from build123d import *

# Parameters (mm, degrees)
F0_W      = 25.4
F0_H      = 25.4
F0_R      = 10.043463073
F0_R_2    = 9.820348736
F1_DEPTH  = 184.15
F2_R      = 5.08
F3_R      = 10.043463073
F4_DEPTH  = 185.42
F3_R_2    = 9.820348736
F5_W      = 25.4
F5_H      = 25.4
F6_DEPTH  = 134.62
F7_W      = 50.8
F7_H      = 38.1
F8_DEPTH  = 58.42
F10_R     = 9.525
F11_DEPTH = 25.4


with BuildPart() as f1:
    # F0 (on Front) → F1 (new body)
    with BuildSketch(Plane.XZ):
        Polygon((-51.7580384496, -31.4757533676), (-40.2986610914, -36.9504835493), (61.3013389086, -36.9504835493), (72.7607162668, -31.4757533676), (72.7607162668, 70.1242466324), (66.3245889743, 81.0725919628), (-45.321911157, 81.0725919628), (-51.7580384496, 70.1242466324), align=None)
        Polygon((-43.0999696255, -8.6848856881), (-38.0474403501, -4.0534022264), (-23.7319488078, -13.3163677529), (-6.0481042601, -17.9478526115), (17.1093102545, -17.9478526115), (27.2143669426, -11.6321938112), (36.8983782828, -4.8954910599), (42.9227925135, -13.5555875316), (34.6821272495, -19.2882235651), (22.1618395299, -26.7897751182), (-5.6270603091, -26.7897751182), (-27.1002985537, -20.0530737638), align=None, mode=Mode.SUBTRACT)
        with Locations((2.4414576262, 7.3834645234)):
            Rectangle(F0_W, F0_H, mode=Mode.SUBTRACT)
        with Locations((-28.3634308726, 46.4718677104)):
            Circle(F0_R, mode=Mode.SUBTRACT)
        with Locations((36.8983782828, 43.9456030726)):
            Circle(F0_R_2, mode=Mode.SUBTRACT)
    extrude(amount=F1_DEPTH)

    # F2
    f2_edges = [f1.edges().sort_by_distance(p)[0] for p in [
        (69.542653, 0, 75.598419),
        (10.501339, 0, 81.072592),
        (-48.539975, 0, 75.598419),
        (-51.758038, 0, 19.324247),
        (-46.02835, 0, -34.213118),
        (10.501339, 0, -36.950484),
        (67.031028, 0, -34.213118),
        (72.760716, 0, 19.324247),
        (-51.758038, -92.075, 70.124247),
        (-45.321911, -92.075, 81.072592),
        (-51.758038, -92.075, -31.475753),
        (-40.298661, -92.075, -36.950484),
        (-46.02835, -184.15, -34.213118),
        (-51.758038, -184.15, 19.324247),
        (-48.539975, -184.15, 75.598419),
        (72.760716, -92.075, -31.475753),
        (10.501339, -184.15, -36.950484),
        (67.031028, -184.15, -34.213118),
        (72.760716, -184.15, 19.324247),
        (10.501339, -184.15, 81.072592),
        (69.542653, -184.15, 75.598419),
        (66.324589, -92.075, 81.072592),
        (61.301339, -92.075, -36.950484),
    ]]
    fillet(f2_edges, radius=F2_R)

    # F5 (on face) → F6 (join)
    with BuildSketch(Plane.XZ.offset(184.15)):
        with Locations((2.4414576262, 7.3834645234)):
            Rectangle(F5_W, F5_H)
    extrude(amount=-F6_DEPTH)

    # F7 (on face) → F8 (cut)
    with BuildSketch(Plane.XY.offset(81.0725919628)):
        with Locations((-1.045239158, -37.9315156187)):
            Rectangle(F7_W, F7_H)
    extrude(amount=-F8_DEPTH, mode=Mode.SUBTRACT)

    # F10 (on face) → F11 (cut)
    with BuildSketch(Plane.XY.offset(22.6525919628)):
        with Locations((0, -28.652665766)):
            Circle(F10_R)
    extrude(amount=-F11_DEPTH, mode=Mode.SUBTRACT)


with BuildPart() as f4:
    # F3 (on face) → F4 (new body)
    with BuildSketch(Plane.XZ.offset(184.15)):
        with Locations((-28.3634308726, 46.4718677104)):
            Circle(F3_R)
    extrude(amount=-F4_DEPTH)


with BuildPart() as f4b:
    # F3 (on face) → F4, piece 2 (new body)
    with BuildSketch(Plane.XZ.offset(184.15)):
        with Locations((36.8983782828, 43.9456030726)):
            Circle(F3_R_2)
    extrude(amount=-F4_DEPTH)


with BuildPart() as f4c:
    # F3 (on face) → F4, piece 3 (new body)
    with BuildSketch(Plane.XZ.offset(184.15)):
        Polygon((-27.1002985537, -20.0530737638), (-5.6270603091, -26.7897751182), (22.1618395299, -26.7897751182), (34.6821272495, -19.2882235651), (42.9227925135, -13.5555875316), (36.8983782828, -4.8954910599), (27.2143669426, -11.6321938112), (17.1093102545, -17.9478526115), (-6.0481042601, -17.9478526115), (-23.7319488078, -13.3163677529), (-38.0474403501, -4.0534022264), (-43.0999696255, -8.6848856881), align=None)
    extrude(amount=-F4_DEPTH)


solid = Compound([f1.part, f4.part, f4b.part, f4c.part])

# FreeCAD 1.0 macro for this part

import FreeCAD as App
import Part
import Sketcher
Q = App.Units.Quantity


def edges_at(feature, points):
    """Names of the edges that pass closest to the given points."""
    edges = feature.Shape.Edges
    near = lambda p: min(range(len(edges)), key=lambda i: edges[i].distToShape(Part.Vertex(*p))[0])
    return sorted({f"Edge{near(p) + 1}" for p in points})


def add_polygon(sketch, points):
    """Adds a closed chain of lines whose ends are joined by coincident constraints."""
    first, n = sketch.GeometryCount, len(points)
    for a, b in zip(points, points[1:] + points[:1]):
        sketch.addGeometry(Part.LineSegment(App.Vector(*a, 0), App.Vector(*b, 0)), False)
    for i in range(n):
        sketch.addConstraint(Sketcher.Constraint("Coincident", first + i, 2, first + (i + 1) % n, 1))

doc = App.newDocument("Part")
body = doc.addObject("PartDesign::Body", "Body")

sketch1 = doc.addObject("Sketcher::SketchObject", "Sketch")
body.addObject(sketch1)
sketch1.AttachmentSupport = (doc.XZ_Plane, [""])
sketch1.MapMode = "FlatFace"
add_polygon(sketch1, [(-51.758038, -31.475753), (-40.298661, -36.950484), (61.301339, -36.950484), (72.760716, -31.475753), (72.760716, 70.124247), (66.324589, 81.072592), (-45.321911, 81.072592), (-51.758038, 70.124247)])
add_polygon(sketch1, [(-27.100299, -20.053074), (-43.09997, -8.684886), (-38.04744, -4.053402), (-23.731949, -13.316368), (-6.048104, -17.947853), (17.10931, -17.947853), (27.214367, -11.632194), (36.898378, -4.895491), (42.922793, -13.555588), (34.682127, -19.288224), (22.16184, -26.789775), (-5.62706, -26.789775)])
add_polygon(sketch1, [(15.141458, -5.316535), (-10.258542, -5.316535), (-10.258542, 20.083465), (15.141458, 20.083465)])
sketch1.addGeometry(Part.Circle(App.Vector(-28.363431, 46.471868, 0), App.Vector(0, 0, 1), 10.043463), False)
sketch1.addGeometry(Part.Circle(App.Vector(36.898378, 43.945603, 0), App.Vector(0, 0, 1), 9.820349), False)
sketch1.addConstraint([
    Sketcher.Constraint("Horizontal", 1),
    Sketcher.Constraint("Vertical", 3),
    Sketcher.Constraint("Horizontal", 5),
    Sketcher.Constraint("Vertical", 7),
    Sketcher.Constraint("Horizontal", 12),
    Sketcher.Constraint("Horizontal", 18),
    Sketcher.Constraint("Horizontal", 20),
    Sketcher.Constraint("Vertical", 21),
    Sketcher.Constraint("Horizontal", 22),
    Sketcher.Constraint("Vertical", 23),
    Sketcher.Constraint("Perpendicular", 14, 15),
    Sketcher.Constraint("Perpendicular", 15, 16),
    Sketcher.Constraint("Horizontal", 3, 2, 6, 2),
    Sketcher.Constraint("Horizontal", 2, 2, 7, 2),
    Sketcher.Constraint("Vertical", 25, 3, 14, 2),
    Sketcher.Constraint("Equal", 1, 3),
    Sketcher.Constraint("Equal", 22, 21),
    Sketcher.Constraint("Equal", 0, 2),
    Sketcher.Constraint("Equal", 2, 4),
    Sketcher.Constraint("Equal", 4, 6),
    Sketcher.Constraint("DistanceX", 1, 1, 1, 2, Q("4 in")),
    Sketcher.Constraint("DistanceX", 20, 2, 20, 1, Q("1 in")),
    Sketcher.Constraint("Distance", 0, Q("0.5 in")),
    Sketcher.Constraint("Diameter", 24, Q("20.086926 mm")),
    Sketcher.Constraint("Diameter", 25, Q("19.640697 mm")),
    Sketcher.Constraint("DistanceX", 5, 2, 5, 1, Q("111.6465 mm")),
    Sketcher.Constraint("DistanceX", 18, 2, 18, 1, Q("27.7889 mm")),
    Sketcher.Constraint("Distance", 9, Q("6.8541 mm")),
    Sketcher.Constraint("DistanceX", 19, 2, -1, 1, Q("27.100299 mm")),
    Sketcher.Constraint("DistanceX", 7, 2, 9, 2, Q("13.710598 mm")),
    Sketcher.Constraint("DistanceY", 7, 2, 11, 2, Q("13.527901 mm")),
    Sketcher.Constraint("DistanceX", 0, 2, 18, 2, Q("34.671601 mm")),
    Sketcher.Constraint("Distance", 11, Q("18.28029 mm")),
    Sketcher.Constraint("Distance", 16, Q("10.03851 mm")),
    Sketcher.Constraint("Distance", 19, Q("22.50518 mm")),
    Sketcher.Constraint("DistanceX", 12, 1, 12, 2, Q("23.157415 mm")),
    Sketcher.Constraint("DistanceX", 24, 3, -1, 1, Q("28.363431 mm")),
    Sketcher.Constraint("DistanceX", -1, 1, 25, 3, Q("36.898378 mm")),
    Sketcher.Constraint("DistanceX", 0, 2, -1, 1, Q("40.298661 mm")),
    Sketcher.Constraint("DistanceY", -1, 1, 4, 2, Q("81.072592 mm")),
    Sketcher.Constraint("DistanceX", 6, 2, -1, 1, Q("51.758038 mm")),
    Sketcher.Constraint("DistanceX", 8, 2, -1, 1, Q("43.09997 mm")),
    Sketcher.Constraint("DistanceX", 10, 2, -1, 1, Q("23.731949 mm")),
    Sketcher.Constraint("DistanceX", -1, 1, 12, 2, Q("17.10931 mm")),
    Sketcher.Constraint("DistanceY", 14, 2, -1, 1, Q("4.895491 mm")),
    Sketcher.Constraint("DistanceY", 0, 2, 24, 3, Q("83.422351 mm")),
    Sketcher.Constraint("DistanceY", 25, 3, 4, 2, Q("37.126989 mm")),
    Sketcher.Constraint("DistanceY", 7, 2, 9, 2, Q("27.422351 mm")),
    Sketcher.Constraint("DistanceY", 12, 2, 13, 2, Q("6.315659 mm")),
    Sketcher.Constraint("DistanceX", 11, 2, 13, 2, Q("33.262471 mm")),
    Sketcher.Constraint("DistanceX", 13, 2, 16, 2, Q("7.46776 mm")),
    Sketcher.Constraint("DistanceY", 17, 2, 16, 2, Q("7.501552 mm")),
    Sketcher.Constraint("DistanceX", 20, 2, 11, 2, Q("4.210438 mm")),
    Sketcher.Constraint("DistanceY", 18, 2, 20, 2, Q("21.47324 mm")),
])
pad1 = doc.addObject("PartDesign::Pad", "Pad")
body.addObject(pad1)
pad1.Profile = sketch1
pad1.Length = Q("7.25 in")
doc.recompute()

fillet = doc.addObject("PartDesign::Fillet", "Fillet")
body.addObject(fillet)
fillet.Base = (pad1, edges_at(pad1, [
    (69.543, 0, 75.598),
    (10.501, 0, 81.073),
    (-48.54, 0, 75.598),
    (-51.758, 0, 19.324),
    (-46.028, 0, -34.213),
    (10.501, 0, -36.95),
    (67.031, 0, -34.213),
    (72.761, 0, 19.324),
    (-51.758, -92.075, 70.124),
    (-45.322, -92.075, 81.073),
    (-51.758, -92.075, -31.476),
    (-40.299, -92.075, -36.95),
    (-46.028, -184.15, -34.213),
    (-51.758, -184.15, 19.324),
    (-48.54, -184.15, 75.598),
    (72.761, -92.075, -31.476),
    (10.501, -184.15, -36.95),
    (67.031, -184.15, -34.213),
    (72.761, -184.15, 19.324),
    (10.501, -184.15, 81.073),
    (69.543, -184.15, 75.598),
    (66.325, -92.075, 81.073),
    (61.301, -92.075, -36.95),
]))
fillet.Radius = Q("0.2 in")

sketch2 = doc.addObject("Sketcher::SketchObject", "Sketch001")
body.addObject(sketch2)
sketch2.AttachmentSupport = (doc.XZ_Plane, [""])
sketch2.MapMode = "FlatFace"
sketch2.AttachmentOffset = App.Placement(App.Vector(0, 0, 7.25 * 25.4), App.Rotation())
add_polygon(sketch2, [(-10.258542, 20.083465), (-10.258542, -5.316535), (15.141458, -5.316535), (15.141458, 20.083465)])
sketch2.addConstraint([
    Sketcher.Constraint("Vertical", 0),
    Sketcher.Constraint("Horizontal", 1),
    Sketcher.Constraint("Vertical", 2),
    Sketcher.Constraint("Horizontal", 3),
    Sketcher.Constraint("Equal", 3, 0),
    Sketcher.Constraint("DistanceX", 1, 1, 1, 2, Q("1 in")),
    Sketcher.Constraint("DistanceX", 0, 2, -1, 1, Q("10.258542 mm")),
    Sketcher.Constraint("DistanceY", 0, 2, -1, 1, Q("5.316535 mm")),
])
pad2 = doc.addObject("PartDesign::Pad", "Pad001")
body.addObject(pad2)
pad2.Profile = sketch2
pad2.Length = Q("5.3 in")
pad2.Reversed = True

sketch3 = doc.addObject("Sketcher::SketchObject", "Sketch002")
body.addObject(sketch3)
sketch3.AttachmentSupport = (doc.XY_Plane, [""])
sketch3.MapMode = "FlatFace"
sketch3.AttachmentOffset = App.Placement(App.Vector(0, 0, 81.072592), App.Rotation())
add_polygon(sketch3, [(-26.445239, -18.881516), (-26.445239, -56.981516), (24.354761, -56.981516), (24.354761, -18.881516)])
sketch3.addConstraint([
    Sketcher.Constraint("Vertical", 0),
    Sketcher.Constraint("Horizontal", 1),
    Sketcher.Constraint("Vertical", 2),
    Sketcher.Constraint("Horizontal", 3),
    Sketcher.Constraint("DistanceX", 1, 1, 1, 2, Q("2 in")),
    Sketcher.Constraint("DistanceY", 0, 2, 0, 1, Q("1.5 in")),
    Sketcher.Constraint("DistanceX", 0, 2, -1, 1, Q("26.445239 mm")),
    Sketcher.Constraint("DistanceY", 0, 2, -1, 1, Q("56.981516 mm")),
])
pocket1 = doc.addObject("PartDesign::Pocket", "Pocket")
body.addObject(pocket1)
pocket1.Profile = sketch3
pocket1.Length = Q("2.3 in")

sketch4 = doc.addObject("Sketcher::SketchObject", "Sketch003")
body.addObject(sketch4)
sketch4.AttachmentSupport = (doc.XY_Plane, [""])
sketch4.MapMode = "FlatFace"
sketch4.AttachmentOffset = App.Placement(App.Vector(0, 0, 22.652592), App.Rotation())
sketch4.addGeometry(Part.Circle(App.Vector(0, -28.652666, 0), App.Vector(0, 0, 1), 9.525), False)
sketch4.addConstraint([
    Sketcher.Constraint("PointOnObject", 0, 3, -2),
    Sketcher.Constraint("Diameter", 0, Q("0.75 in")),
    Sketcher.Constraint("DistanceY", 0, 3, -1, 1, Q("28.652666 mm")),
])
pocket2 = doc.addObject("PartDesign::Pocket", "Pocket001")
body.addObject(pocket2)
pocket2.Profile = sketch4
pocket2.Length = Q("1 in")
body2 = doc.addObject("PartDesign::Body", "Body001")

sketch5 = doc.addObject("Sketcher::SketchObject", "Sketch004")
body2.addObject(sketch5)
sketch5.AttachmentSupport = (doc.getObject("XZ_Plane001"), [""])
sketch5.MapMode = "FlatFace"
sketch5.AttachmentOffset = App.Placement(App.Vector(0, 0, 7.25 * 25.4), App.Rotation())
sketch5.addGeometry(Part.Circle(App.Vector(-28.363431, 46.471868, 0), App.Vector(0, 0, 1), 10.043463), False)
sketch5.addConstraint([
    Sketcher.Constraint("Diameter", 0, Q("20.086926 mm")),
    Sketcher.Constraint("DistanceX", 0, 3, -1, 1, Q("28.363431 mm")),
    Sketcher.Constraint("DistanceY", -1, 1, 0, 3, Q("46.471868 mm")),
])
pad3 = doc.addObject("PartDesign::Pad", "Pad002")
body2.addObject(pad3)
pad3.Profile = sketch5
pad3.Length = Q("7.3 in")
pad3.Reversed = True
body3 = doc.addObject("PartDesign::Body", "Body002")

sketch6 = doc.addObject("Sketcher::SketchObject", "Sketch005")
body3.addObject(sketch6)
sketch6.AttachmentSupport = (doc.getObject("XZ_Plane002"), [""])
sketch6.MapMode = "FlatFace"
sketch6.AttachmentOffset = App.Placement(App.Vector(0, 0, 7.25 * 25.4), App.Rotation())
sketch6.addGeometry(Part.Circle(App.Vector(36.898378, 43.945603, 0), App.Vector(0, 0, 1), 9.820349), False)
sketch6.addConstraint([
    Sketcher.Constraint("Diameter", 0, Q("19.640697 mm")),
    Sketcher.Constraint("DistanceX", -1, 1, 0, 3, Q("36.898378 mm")),
    Sketcher.Constraint("DistanceY", -1, 1, 0, 3, Q("43.945603 mm")),
])
pad4 = doc.addObject("PartDesign::Pad", "Pad003")
body3.addObject(pad4)
pad4.Profile = sketch6
pad4.Length = Q("7.3 in")
pad4.Reversed = True
body4 = doc.addObject("PartDesign::Body", "Body003")

sketch7 = doc.addObject("Sketcher::SketchObject", "Sketch006")
body4.addObject(sketch7)
sketch7.AttachmentSupport = (doc.getObject("XZ_Plane003"), [""])
sketch7.MapMode = "FlatFace"
sketch7.AttachmentOffset = App.Placement(App.Vector(0, 0, 7.25 * 25.4), App.Rotation())
add_polygon(sketch7, [(-27.100299, -20.053074), (-5.62706, -26.789775), (22.16184, -26.789775), (34.682127, -19.288224), (42.922793, -13.555588), (36.898378, -4.895491), (27.214367, -11.632194), (17.10931, -17.947853), (-6.048104, -17.947853), (-23.731949, -13.316368), (-38.04744, -4.053402), (-43.09997, -8.684886)])
sketch7.addConstraint([
    Sketcher.Constraint("Horizontal", 1),
    Sketcher.Constraint("Horizontal", 7),
    Sketcher.Constraint("Perpendicular", 3, 4),
    Sketcher.Constraint("Perpendicular", 4, 5),
    Sketcher.Constraint("DistanceX", 1, 1, 1, 2, Q("27.7889 mm")),
    Sketcher.Constraint("Distance", 10, Q("6.8541 mm")),
    Sketcher.Constraint("DistanceX", 11, 2, -1, 1, Q("27.100299 mm")),
    Sketcher.Constraint("DistanceY", 0, 2, 11, 2, Q("6.736701 mm")),
    Sketcher.Constraint("Distance", 0, Q("22.50518 mm")),
    Sketcher.Constraint("Distance", 3, Q("10.03851 mm")),
    Sketcher.Constraint("Distance", 8, Q("18.28029 mm")),
    Sketcher.Constraint("DistanceX", 7, 2, 7, 1, Q("23.157415 mm")),
    Sketcher.Constraint("DistanceX", -1, 1, 4, 2, Q("36.898378 mm")),
    Sketcher.Constraint("DistanceY", 4, 2, -1, 1, Q("4.895491 mm")),
    Sketcher.Constraint("DistanceX", -1, 1, 6, 2, Q("17.10931 mm")),
    Sketcher.Constraint("DistanceX", 8, 2, -1, 1, Q("23.731949 mm")),
    Sketcher.Constraint("DistanceX", 9, 2, -1, 1, Q("38.04744 mm")),
    Sketcher.Constraint("DistanceX", 10, 2, -1, 1, Q("43.09997 mm")),
    Sketcher.Constraint("DistanceY", 1, 2, 2, 2, Q("7.501552 mm")),
    Sketcher.Constraint("DistanceX", 2, 2, 4, 2, Q("2.216251 mm")),
    Sketcher.Constraint("DistanceX", 5, 2, 2, 2, Q("7.46776 mm")),
    Sketcher.Constraint("DistanceY", 2, 2, 5, 2, Q("7.65603 mm")),
    Sketcher.Constraint("DistanceY", 6, 2, 5, 2, Q("6.315659 mm")),
    Sketcher.Constraint("DistanceY", 7, 2, 9, 2, Q("13.89445 mm")),
])
pad5 = doc.addObject("PartDesign::Pad", "Pad004")
body4.addObject(pad5)
pad5.Profile = sketch7
pad5.Length = Q("7.3 in")
pad5.Reversed = True

doc.recompute()
